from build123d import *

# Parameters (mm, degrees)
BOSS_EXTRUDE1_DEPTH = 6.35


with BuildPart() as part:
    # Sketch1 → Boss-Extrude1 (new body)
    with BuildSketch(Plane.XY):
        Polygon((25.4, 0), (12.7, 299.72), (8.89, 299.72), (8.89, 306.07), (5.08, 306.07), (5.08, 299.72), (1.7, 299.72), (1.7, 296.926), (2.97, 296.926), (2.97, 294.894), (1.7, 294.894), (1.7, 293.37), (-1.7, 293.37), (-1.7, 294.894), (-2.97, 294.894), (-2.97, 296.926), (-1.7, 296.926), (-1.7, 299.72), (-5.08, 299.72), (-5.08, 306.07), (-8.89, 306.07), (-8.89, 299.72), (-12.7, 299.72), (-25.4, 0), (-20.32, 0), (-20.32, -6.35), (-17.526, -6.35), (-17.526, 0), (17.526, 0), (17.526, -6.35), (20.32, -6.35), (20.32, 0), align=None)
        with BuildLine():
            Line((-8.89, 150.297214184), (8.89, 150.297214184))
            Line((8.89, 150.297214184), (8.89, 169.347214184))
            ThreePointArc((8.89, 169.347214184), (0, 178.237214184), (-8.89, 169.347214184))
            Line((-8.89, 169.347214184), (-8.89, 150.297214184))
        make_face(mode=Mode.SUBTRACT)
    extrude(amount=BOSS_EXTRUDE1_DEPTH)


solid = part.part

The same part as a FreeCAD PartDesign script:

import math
import FreeCAD as App
import Part
import Sketcher
from FreeCAD import Vector
Q = App.Units.Quantity


def add_polygon(sketch, points):
    """Adds a closed chain of lines whose ends are joined by coincident constraints."""
    first, n = sketch.GeometryCount, len(points)
    for a, b in zip(points, points[1:] + points[:1]):
        sketch.addGeometry(Part.LineSegment(App.Vector(*a, 0), App.Vector(*b, 0)), False)
    for i in range(n):
        sketch.addConstraint(Sketcher.Constraint("Coincident", first + i, 2, first + (i + 1) % n, 1))

doc = App.newDocument("Part")
body = doc.addObject("PartDesign::Body", "Body")

# Sketch on XY plane
sketch1 = doc.addObject("Sketcher::SketchObject", "Sketch")
body.addObject(sketch1)
sketch1.AttachmentSupport = (doc.XY_Plane, [""])
sketch1.MapMode = "FlatFace"
add_polygon(sketch1, [(25.4, 0), (12.7, 299.7), (8.9, 299.7), (8.9, 306.1), (5.1, 306.1), (5.1, 299.7), (1.7, 299.7), (1.7, 296.9), (3, 296.9), (3, 294.9), (1.7, 294.9), (1.7, 293.4), (-1.7, 293.4), (-1.7, 294.9), (-3, 294.9), (-3, 296.9), (-1.7, 296.9), (-1.7, 299.7), (-5.1, 299.7), (-5.1, 306.1), (-8.9, 306.1), (-8.9, 299.7), (-12.7, 299.7), (-25.4, 0), (-20.3, 0), (-20.3, -6.3), (-17.5, -6.3), (-17.5, 0), (17.5, 0), (17.5, -6.3), (20.3, -6.3), (20.3, 0)])  # lines 0-31
sketch1.addGeometry(Part.LineSegment(Vector(8.9, 150.3, 0), Vector(-8.9, 150.3, 0)), False)  # 32
sketch1.addGeometry(Part.LineSegment(Vector(-8.9, 150.3, 0), Vector(-8.9, 169.3, 0)), False)  # 33
sketch1.addGeometry(Part.ArcOfCircle(Part.Circle(Vector(0, 169.3, 0), Vector(0, 0, 1), 8.9), math.radians(0), math.radians(180)), False)  # 34
sketch1.addGeometry(Part.LineSegment(Vector(8.9, 169.3, 0), Vector(8.9, 150.3, 0)), False)  # 35
sketch1.addConstraint([
    Sketcher.Constraint("Coincident", 32, 2, 33, 1),
    Sketcher.Constraint("Tangent", 33, 2, 34, 2),
    Sketcher.Constraint("Tangent", 34, 1, 35, 1),
    Sketcher.Constraint("Coincident", 35, 2, 32, 1),
    Sketcher.Constraint("Horizontal", 1),
    Sketcher.Constraint("Vertical", 2),
    Sketcher.Constraint("Horizontal", 3),
    Sketcher.Constraint("Vertical", 4),
    Sketcher.Constraint("Horizontal", 5),
    Sketcher.Constraint("Vertical", 6),
    Sketcher.Constraint("Horizontal", 7),
    Sketcher.Constraint("Vertical", 8),
    Sketcher.Constraint("Horizontal", 9),
    Sketcher.Constraint("Vertical", 10),
    Sketcher.Constraint("Horizontal", 11),
    Sketcher.Constraint("Vertical", 12),
    Sketcher.Constraint("Horizontal", 13),
    Sketcher.Constraint("Vertical", 14),
    Sketcher.Constraint("Horizontal", 15),
    Sketcher.Constraint("Vertical", 16),
    Sketcher.Constraint("Horizontal", 17),
    Sketcher.Constraint("Vertical", 18),
    Sketcher.Constraint("Horizontal", 19),
    Sketcher.Constraint("Vertical", 20),
    Sketcher.Constraint("Horizontal", 21),
    Sketcher.Constraint("Horizontal", 23),
    Sketcher.Constraint("Vertical", 24),
    Sketcher.Constraint("Horizontal", 25),
    Sketcher.Constraint("Vertical", 26),
    Sketcher.Constraint("Horizontal", 27),
    Sketcher.Constraint("Vertical", 28),
    Sketcher.Constraint("Horizontal", 29),
    Sketcher.Constraint("Vertical", 30),
    Sketcher.Constraint("Horizontal", 31),
    Sketcher.Constraint("Horizontal", 32),
    Sketcher.Constraint("Vertical", 33),
    Sketcher.Constraint("Vertical", 35),
    Sketcher.Constraint("Symmetric", 26, 2, 27, 2, -1, 1),
    Sketcher.Constraint("Symmetric", 23, 2, 30, 2, -1, 1),
    Sketcher.Constraint("Symmetric", 9, 2, 12, 2, -2),
    Sketcher.Constraint("Symmetric", 7, 2, 14, 2, -2),
    Sketcher.Constraint("Symmetric", 5, 2, 16, 2, -2),
    Sketcher.Constraint("Symmetric", 3, 2, 18, 2, -2),
    Sketcher.Constraint("Symmetric", 1, 2, 20, 2, -2),
    Sketcher.Constraint("Symmetric", 22, 2, 31, 2, -2),
    Sketcher.Constraint("PointOnObject", 34, 3, -2),
    Sketcher.Constraint("Horizontal", 1, 2, 4, 2),
    Sketcher.Constraint("Horizontal", 25, 2, 28, 2),
    Sketcher.Constraint("Vertical", 6, 2, 9, 2),
    Sketcher.Constraint("Vertical", 20, 2, 32, 2),
    Sketcher.Constraint("Equal", 1, 3),
    Sketcher.Constraint("Equal", 19, 21),
    Sketcher.Constraint("Equal", 29, 6),
    Sketcher.Constraint("Equal", 20, 24),
    Sketcher.Constraint("Radius", 34, Q("0.35 in")),
    Sketcher.Constraint("DistanceX", 23, 1, 23, 2, Q("0.2 in")),
    Sketcher.Constraint("DistanceX", 22, 2, -1, 1, Q("1 in")),
    Sketcher.Constraint("DistanceX", 1, 2, 1, 1, Q("0.15 in")),
    Sketcher.Constraint("DistanceX", 7, 1, 7, 2, Q("0.05 in")),
    Sketcher.Constraint("DistanceX", 25, 1, 25, 2, Q("0.11 in")),
    Sketcher.Constraint("DistanceY", 2, 1, 2, 2, Q("0.25 in")),
    Sketcher.Constraint("DistanceY", 8, 2, 8, 1, Q("0.08 in")),
    Sketcher.Constraint("DistanceY", 10, 2, 10, 1, Q("0.06 in")),
    Sketcher.Constraint("DistanceY", 33, 1, 33, 2, Q("0.75 in")),
    Sketcher.Constraint("DistanceY", -1, 1, 0, 2, Q("11.8 in")),
    Sketcher.Constraint("DistanceX", 5, 2, 5, 1, Q("3.38 mm")),
    Sketcher.Constraint("DistanceY", -1, 1, 34, 3, Q("169.347214 mm")),
])
pad1 = doc.addObject("PartDesign::Pad", "Pad")
body.addObject(pad1)
pad1.Profile = sketch1
pad1.Length = Q("0.25 in")

doc.recompute()
